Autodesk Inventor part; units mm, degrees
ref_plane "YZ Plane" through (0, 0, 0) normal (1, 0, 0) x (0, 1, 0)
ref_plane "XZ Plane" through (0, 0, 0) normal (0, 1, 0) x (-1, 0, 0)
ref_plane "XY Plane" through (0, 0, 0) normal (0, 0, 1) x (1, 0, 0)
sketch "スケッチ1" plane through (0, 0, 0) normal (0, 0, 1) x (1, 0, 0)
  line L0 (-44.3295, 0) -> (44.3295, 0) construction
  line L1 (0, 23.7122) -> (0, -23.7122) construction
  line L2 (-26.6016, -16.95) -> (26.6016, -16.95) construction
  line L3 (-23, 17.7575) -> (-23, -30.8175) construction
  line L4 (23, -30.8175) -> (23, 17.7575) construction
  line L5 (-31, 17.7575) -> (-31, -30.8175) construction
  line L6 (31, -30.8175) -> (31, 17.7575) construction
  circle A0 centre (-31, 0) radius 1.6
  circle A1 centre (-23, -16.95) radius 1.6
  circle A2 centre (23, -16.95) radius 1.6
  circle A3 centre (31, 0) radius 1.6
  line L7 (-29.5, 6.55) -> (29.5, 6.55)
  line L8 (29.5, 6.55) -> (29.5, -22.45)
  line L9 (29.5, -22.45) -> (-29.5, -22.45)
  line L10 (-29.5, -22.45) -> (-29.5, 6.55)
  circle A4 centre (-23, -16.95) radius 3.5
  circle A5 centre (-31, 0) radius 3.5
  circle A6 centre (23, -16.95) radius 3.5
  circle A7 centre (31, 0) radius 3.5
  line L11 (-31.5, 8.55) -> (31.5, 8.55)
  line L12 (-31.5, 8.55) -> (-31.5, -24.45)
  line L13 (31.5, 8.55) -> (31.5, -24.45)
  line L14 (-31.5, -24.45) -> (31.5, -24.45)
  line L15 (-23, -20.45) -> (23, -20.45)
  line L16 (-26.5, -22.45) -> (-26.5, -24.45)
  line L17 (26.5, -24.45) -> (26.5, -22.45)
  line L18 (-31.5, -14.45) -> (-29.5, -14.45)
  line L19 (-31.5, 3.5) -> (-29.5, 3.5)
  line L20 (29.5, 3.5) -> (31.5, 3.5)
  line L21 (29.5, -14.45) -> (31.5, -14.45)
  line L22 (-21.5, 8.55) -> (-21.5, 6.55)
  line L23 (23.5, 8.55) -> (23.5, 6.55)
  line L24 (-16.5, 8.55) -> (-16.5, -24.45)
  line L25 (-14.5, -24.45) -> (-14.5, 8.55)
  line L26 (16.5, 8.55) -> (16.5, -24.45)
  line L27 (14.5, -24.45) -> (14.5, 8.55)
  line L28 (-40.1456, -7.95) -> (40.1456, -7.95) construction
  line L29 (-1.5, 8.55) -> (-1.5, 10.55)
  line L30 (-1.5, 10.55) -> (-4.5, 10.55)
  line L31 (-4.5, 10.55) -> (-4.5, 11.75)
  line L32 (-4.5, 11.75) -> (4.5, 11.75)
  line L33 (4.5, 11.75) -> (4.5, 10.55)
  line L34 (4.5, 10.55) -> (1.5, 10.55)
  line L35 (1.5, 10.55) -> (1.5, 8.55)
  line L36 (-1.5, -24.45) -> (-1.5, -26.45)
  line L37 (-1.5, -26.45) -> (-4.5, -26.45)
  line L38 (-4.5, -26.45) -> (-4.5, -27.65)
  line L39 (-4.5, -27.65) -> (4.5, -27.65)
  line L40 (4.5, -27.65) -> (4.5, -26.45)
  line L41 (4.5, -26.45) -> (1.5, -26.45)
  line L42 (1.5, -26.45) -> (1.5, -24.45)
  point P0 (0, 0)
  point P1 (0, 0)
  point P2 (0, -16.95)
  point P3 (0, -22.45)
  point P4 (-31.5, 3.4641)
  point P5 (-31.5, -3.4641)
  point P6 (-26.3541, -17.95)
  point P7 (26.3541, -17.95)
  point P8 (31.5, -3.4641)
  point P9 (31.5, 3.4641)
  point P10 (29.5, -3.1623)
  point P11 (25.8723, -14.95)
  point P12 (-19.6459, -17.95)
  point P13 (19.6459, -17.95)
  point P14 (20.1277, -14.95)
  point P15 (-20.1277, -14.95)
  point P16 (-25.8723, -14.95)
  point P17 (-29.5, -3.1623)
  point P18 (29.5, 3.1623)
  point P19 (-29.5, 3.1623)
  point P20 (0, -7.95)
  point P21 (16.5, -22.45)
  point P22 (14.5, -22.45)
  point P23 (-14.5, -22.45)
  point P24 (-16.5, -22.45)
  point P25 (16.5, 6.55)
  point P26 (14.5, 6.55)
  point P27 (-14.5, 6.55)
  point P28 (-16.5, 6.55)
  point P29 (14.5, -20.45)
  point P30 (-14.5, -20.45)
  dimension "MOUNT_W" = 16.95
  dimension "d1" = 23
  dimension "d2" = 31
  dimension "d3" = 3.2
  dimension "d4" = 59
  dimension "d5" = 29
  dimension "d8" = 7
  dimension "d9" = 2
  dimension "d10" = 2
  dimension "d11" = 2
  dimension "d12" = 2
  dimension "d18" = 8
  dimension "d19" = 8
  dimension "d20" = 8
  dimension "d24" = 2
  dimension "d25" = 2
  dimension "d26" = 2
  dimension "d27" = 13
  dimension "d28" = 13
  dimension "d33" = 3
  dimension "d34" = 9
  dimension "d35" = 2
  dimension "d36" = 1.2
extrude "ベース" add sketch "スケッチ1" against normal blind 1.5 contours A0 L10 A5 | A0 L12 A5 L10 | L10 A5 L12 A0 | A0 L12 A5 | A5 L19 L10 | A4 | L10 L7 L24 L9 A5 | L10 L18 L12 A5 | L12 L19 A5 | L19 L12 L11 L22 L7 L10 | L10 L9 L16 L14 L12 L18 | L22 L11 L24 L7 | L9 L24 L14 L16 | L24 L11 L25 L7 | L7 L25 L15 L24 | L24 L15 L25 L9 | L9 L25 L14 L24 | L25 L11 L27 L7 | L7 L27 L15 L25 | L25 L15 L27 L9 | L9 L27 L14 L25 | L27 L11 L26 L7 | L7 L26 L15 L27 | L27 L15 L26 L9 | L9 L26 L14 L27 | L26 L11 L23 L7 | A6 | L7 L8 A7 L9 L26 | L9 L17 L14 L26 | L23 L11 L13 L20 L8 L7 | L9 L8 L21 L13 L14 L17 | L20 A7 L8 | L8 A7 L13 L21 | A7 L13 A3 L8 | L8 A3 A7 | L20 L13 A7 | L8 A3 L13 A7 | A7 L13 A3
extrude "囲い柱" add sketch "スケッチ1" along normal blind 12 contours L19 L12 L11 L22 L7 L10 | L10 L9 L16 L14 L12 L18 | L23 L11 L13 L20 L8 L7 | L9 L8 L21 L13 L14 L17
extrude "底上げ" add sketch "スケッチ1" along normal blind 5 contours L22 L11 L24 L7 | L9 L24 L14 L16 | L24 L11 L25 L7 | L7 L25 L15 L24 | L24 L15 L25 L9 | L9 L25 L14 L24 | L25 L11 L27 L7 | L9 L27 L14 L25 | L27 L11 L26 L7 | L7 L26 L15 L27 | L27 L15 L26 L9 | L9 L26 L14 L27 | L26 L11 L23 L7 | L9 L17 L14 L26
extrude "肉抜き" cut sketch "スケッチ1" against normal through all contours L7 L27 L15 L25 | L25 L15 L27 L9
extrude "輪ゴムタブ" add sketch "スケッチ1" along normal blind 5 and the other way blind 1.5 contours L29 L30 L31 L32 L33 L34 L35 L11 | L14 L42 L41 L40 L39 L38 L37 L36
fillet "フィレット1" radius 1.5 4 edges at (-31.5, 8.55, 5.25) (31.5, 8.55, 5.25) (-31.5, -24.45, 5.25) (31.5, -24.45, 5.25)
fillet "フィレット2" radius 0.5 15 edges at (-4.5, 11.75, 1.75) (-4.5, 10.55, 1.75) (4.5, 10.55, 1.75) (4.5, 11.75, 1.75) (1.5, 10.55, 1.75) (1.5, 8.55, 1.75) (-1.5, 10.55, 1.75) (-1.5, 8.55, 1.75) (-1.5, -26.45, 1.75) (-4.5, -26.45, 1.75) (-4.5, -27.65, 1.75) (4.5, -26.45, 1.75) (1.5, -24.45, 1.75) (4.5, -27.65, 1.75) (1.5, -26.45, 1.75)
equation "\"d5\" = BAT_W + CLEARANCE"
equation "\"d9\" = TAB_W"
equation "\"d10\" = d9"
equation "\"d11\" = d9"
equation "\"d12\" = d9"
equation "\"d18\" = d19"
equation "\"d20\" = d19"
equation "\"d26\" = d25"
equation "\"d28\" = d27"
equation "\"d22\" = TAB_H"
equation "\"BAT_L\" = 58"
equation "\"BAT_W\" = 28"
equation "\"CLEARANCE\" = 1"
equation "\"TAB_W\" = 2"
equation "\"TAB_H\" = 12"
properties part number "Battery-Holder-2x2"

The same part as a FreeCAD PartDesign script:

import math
import FreeCAD as App
import Part
import Sketcher


def edges_at(feature, points):
    """Names of the edges that pass closest to the given points."""
    edges = feature.Shape.Edges
    near = lambda p: min(range(len(edges)), key=lambda i: edges[i].distToShape(Part.Vertex(*p))[0])
    return sorted({f"Edge{near(p) + 1}" for p in points})


def add_polygon(sketch, points):
    """Adds a closed chain of lines whose ends are joined by coincident constraints."""
    first, n = sketch.GeometryCount, len(points)
    for a, b in zip(points, points[1:] + points[:1]):
        sketch.addGeometry(Part.LineSegment(App.Vector(*a, 0), App.Vector(*b, 0)), False)
    for i in range(n):
        sketch.addConstraint(Sketcher.Constraint("Coincident", first + i, 2, first + (i + 1) % n, 1))

doc = App.newDocument("Part")
body = doc.addObject("PartDesign::Body", "Body")

# Sketch on XY plane
sketch1 = body.newObject("Sketcher::SketchObject", "Sketch")
sketch1.AttachmentSupport = (doc.getObject("XY_Plane"), [""])
sketch1.MapMode = "FlatFace"
sketch1.addGeometry(Part.ArcOfCircle(Part.Circle(App.Vector(-31, 0, 0), App.Vector(0, 0, 1), 3.5), math.radians(98.213211), math.radians(261.786789)), False)
sketch1.addGeometry(Part.LineSegment(App.Vector(-31.5, -3.464102, 0), App.Vector(-31.5, -24.45, 0)), False)
sketch1.addGeometry(Part.LineSegment(App.Vector(-31.5, -24.45, 0), App.Vector(31.5, -24.45, 0)), False)
sketch1.addGeometry(Part.LineSegment(App.Vector(31.5, -24.45, 0), App.Vector(31.5, -3.464102, 0)), False)
sketch1.addGeometry(Part.ArcOfCircle(Part.Circle(App.Vector(31, 0, 0), App.Vector(0, 0, 1), 3.5), math.radians(-81.786789), math.radians(81.786789)), False)
sketch1.addGeometry(Part.LineSegment(App.Vector(31.5, 3.464102, 0), App.Vector(31.5, 8.55, 0)), False)
sketch1.addGeometry(Part.LineSegment(App.Vector(31.5, 8.55, 0), App.Vector(-31.5, 8.55, 0)), False)
sketch1.addGeometry(Part.LineSegment(App.Vector(-31.5, 8.55, 0), App.Vector(-31.5, 3.464102, 0)), False)
sketch1.addGeometry(Part.Circle(App.Vector(-31, 0, 0), App.Vector(0, 0, 1), 1.6), False)
sketch1.addGeometry(Part.Circle(App.Vector(-23, -16.95, 0), App.Vector(0, 0, 1), 1.6), False)
sketch1.addGeometry(Part.Circle(App.Vector(31, 0, 0), App.Vector(0, 0, 1), 1.6), False)
sketch1.addGeometry(Part.Circle(App.Vector(23, -16.95, 0), App.Vector(0, 0, 1), 1.6), False)
sketch1.addConstraint(Sketcher.Constraint("Coincident", 0, 2, 1, 1))
sketch1.addConstraint(Sketcher.Constraint("Coincident", 1, 2, 2, 1))
sketch1.addConstraint(Sketcher.Constraint("Coincident", 2, 2, 3, 1))
sketch1.addConstraint(Sketcher.Constraint("Coincident", 3, 2, 4, 1))
sketch1.addConstraint(Sketcher.Constraint("Coincident", 4, 2, 5, 1))
sketch1.addConstraint(Sketcher.Constraint("Coincident", 5, 2, 6, 1))
sketch1.addConstraint(Sketcher.Constraint("Coincident", 6, 2, 7, 1))
sketch1.addConstraint(Sketcher.Constraint("Coincident", 7, 2, 0, 1))
sketch1.addConstraint(Sketcher.Constraint("Vertical", 1))
sketch1.addConstraint(Sketcher.Constraint("Horizontal", 2))
sketch1.addConstraint(Sketcher.Constraint("Vertical", 3))
sketch1.addConstraint(Sketcher.Constraint("Vertical", 5))
sketch1.addConstraint(Sketcher.Constraint("Horizontal", 6))
sketch1.addConstraint(Sketcher.Constraint("Vertical", 7))
sketch1.addConstraint(Sketcher.Constraint("Coincident", 8, 3, 0, 3))
sketch1.addConstraint(Sketcher.Constraint("Coincident", 10, 3, 4, 3))
sketch1.addConstraint(Sketcher.Constraint("Equal", 0, 4))
sketch1.addConstraint(Sketcher.Constraint("Equal", 8, 9))
sketch1.addConstraint(Sketcher.Constraint("Equal", 9, 10))
sketch1.addConstraint(Sketcher.Constraint("Equal", 10, 11))
sketch1.addConstraint(Sketcher.Constraint("Symmetric", 0, 3, 4, 3, -1, 1))
sketch1.addConstraint(Sketcher.Constraint("Symmetric", 9, 3, 11, 3, -2))
sketch1.addConstraint(Sketcher.Constraint("Symmetric", 0, 2, 3, 2, -2))
sketch1.addConstraint(Sketcher.Constraint("Horizontal", 4, 2, 7, 2))
sketch1.addConstraint(Sketcher.Constraint("Vertical", 3, 2, 4, 2))
sketch1.addConstraint(Sketcher.Constraint("Diameter", 8, 3.2))
sketch1.addConstraint(Sketcher.Constraint("Radius", 0, 3.5))
sketch1.addConstraint(Sketcher.Constraint("DistanceX", 0, 3, -1, 1, 31.0))
sketch1.addConstraint(Sketcher.Constraint("DistanceX", 9, 3, -1, 1, 23.0))
sketch1.addConstraint(Sketcher.Constraint("DistanceX", 2, 1, 2, 2, 63.0))
sketch1.addConstraint(Sketcher.Constraint("DistanceY", 9, 3, -1, 1, 16.95))
sketch1.addConstraint(Sketcher.Constraint("DistanceY", 1, 2, 6, 2, 33.0))
sketch1.addConstraint(Sketcher.Constraint("DistanceY", 1, 2, 9, 3, 7.5))
pad1 = body.newObject("PartDesign::Pad", "Pad")
pad1.Profile = sketch1
pad1.Length = 1.5
pad1.Reversed = True

# Sketch on XY plane
sketch2 = body.newObject("Sketcher::SketchObject", "Sketch001")
sketch2.AttachmentSupport = (doc.getObject("XY_Plane"), [""])
sketch2.MapMode = "FlatFace"
add_polygon(sketch2, [(-31.5, 3.5), (-29.5, 3.5), (-29.5, 6.55), (-21.5, 6.55), (-21.5, 8.55), (-31.5, 8.55)])  # lines 0-5
add_polygon(sketch2, [(-29.5, -22.45), (-29.5, -14.45), (-31.5, -14.45), (-31.5, -24.45), (-26.5, -24.45), (-26.5, -22.45)])  # lines 6-11
add_polygon(sketch2, [(23.5, 8.55), (23.5, 6.55), (29.5, 6.55), (29.5, 3.5), (31.5, 3.5), (31.5, 8.55)])  # lines 12-17
add_polygon(sketch2, [(29.5, -22.45), (26.5, -22.45), (26.5, -24.45), (31.5, -24.45), (31.5, -14.45), (29.5, -14.45)])  # lines 18-23
sketch2.addConstraint(Sketcher.Constraint("Horizontal", 0))
sketch2.addConstraint(Sketcher.Constraint("Vertical", 1))
sketch2.addConstraint(Sketcher.Constraint("Horizontal", 2))
sketch2.addConstraint(Sketcher.Constraint("Vertical", 3))
sketch2.addConstraint(Sketcher.Constraint("Horizontal", 4))
sketch2.addConstraint(Sketcher.Constraint("Vertical", 5))
sketch2.addConstraint(Sketcher.Constraint("Vertical", 6))
sketch2.addConstraint(Sketcher.Constraint("Horizontal", 7))
sketch2.addConstraint(Sketcher.Constraint("Vertical", 8))
sketch2.addConstraint(Sketcher.Constraint("Horizontal", 9))
sketch2.addConstraint(Sketcher.Constraint("Vertical", 10))
sketch2.addConstraint(Sketcher.Constraint("Horizontal", 11))
sketch2.addConstraint(Sketcher.Constraint("Vertical", 12))
sketch2.addConstraint(Sketcher.Constraint("Horizontal", 13))
sketch2.addConstraint(Sketcher.Constraint("Vertical", 14))
sketch2.addConstraint(Sketcher.Constraint("Horizontal", 15))
sketch2.addConstraint(Sketcher.Constraint("Vertical", 16))
sketch2.addConstraint(Sketcher.Constraint("Horizontal", 17))
sketch2.addConstraint(Sketcher.Constraint("Horizontal", 18))
sketch2.addConstraint(Sketcher.Constraint("Vertical", 19))
sketch2.addConstraint(Sketcher.Constraint("Horizontal", 20))
sketch2.addConstraint(Sketcher.Constraint("Vertical", 21))
sketch2.addConstraint(Sketcher.Constraint("Horizontal", 22))
sketch2.addConstraint(Sketcher.Constraint("Vertical", 23))
sketch2.addConstraint(Sketcher.Constraint("Symmetric", 1, 2, 13, 2, -2))
sketch2.addConstraint(Sketcher.Constraint("Symmetric", 5, 2, 15, 2, -2))
sketch2.addConstraint(Sketcher.Constraint("Symmetric", 10, 2, 18, 2, -2))
sketch2.addConstraint(Sketcher.Constraint("Symmetric", 8, 2, 20, 2, -2))
sketch2.addConstraint(Sketcher.Constraint("Symmetric", 6, 2, 22, 2, -2))
sketch2.addConstraint(Sketcher.Constraint("Horizontal", 4, 2, 16, 2))
sketch2.addConstraint(Sketcher.Constraint("Vertical", 1, 2, 6, 2))
sketch2.addConstraint(Sketcher.Constraint("Vertical", 5, 2, 7, 2))
sketch2.addConstraint(Sketcher.Constraint("Equal", 2, 17))
sketch2.addConstraint(Sketcher.Constraint("Equal", 22, 3))
sketch2.addConstraint(Sketcher.Constraint("Equal", 17, 6))
sketch2.addConstraint(Sketcher.Constraint("Equal", 4, 8))
sketch2.addConstraint(Sketcher.Constraint("DistanceX", 0, 1, 0, 2, 2.0))
sketch2.addConstraint(Sketcher.Constraint("DistanceX", 2, 1, 2, 2, 8.0))
sketch2.addConstraint(Sketcher.Constraint("DistanceX", 11, 2, 11, 1, 3.0))
sketch2.addConstraint(Sketcher.Constraint("DistanceY", 6, 2, 4, 2, 23.0))
sketch2.addConstraint(Sketcher.Constraint("DistanceX", 1, 2, 13, 2, 59.0))
sketch2.addConstraint(Sketcher.Constraint("DistanceY", 1, 1, 1, 2, 3.05))
sketch2.addConstraint(Sketcher.Constraint("DistanceY", -1, 1, 0, 2, 3.5))
pad2 = body.newObject("PartDesign::Pad", "Pad001")
pad2.Profile = sketch2
pad2.Length = 12

# Sketch on XY plane
sketch3 = body.newObject("Sketcher::SketchObject", "Sketch002")
sketch3.AttachmentSupport = (doc.getObject("XY_Plane"), [""])
sketch3.MapMode = "FlatFace"
add_polygon(sketch3, [(-21.5, 8.55), (-21.5, 6.55), (-16.5, 6.55), (-16.5, -22.45), (-26.5, -22.45), (-26.5, -24.45), (26.5, -24.45), (26.5, -22.45), (16.5, -22.45), (16.5, 6.55), (23.5, 6.55), (23.5, 8.55)])  # lines 0-11
add_polygon(sketch3, [(-14.5, 6.55), (14.5, 6.55), (14.5, -22.45), (-14.5, -22.45)])  # lines 12-15
sketch3.addConstraint(Sketcher.Constraint("Vertical", 0))
sketch3.addConstraint(Sketcher.Constraint("Horizontal", 1))
sketch3.addConstraint(Sketcher.Constraint("Vertical", 2))
sketch3.addConstraint(Sketcher.Constraint("Horizontal", 3))
sketch3.addConstraint(Sketcher.Constraint("Vertical", 4))
sketch3.addConstraint(Sketcher.Constraint("Horizontal", 5))
sketch3.addConstraint(Sketcher.Constraint("Vertical", 6))
sketch3.addConstraint(Sketcher.Constraint("Horizontal", 7))
sketch3.addConstraint(Sketcher.Constraint("Vertical", 8))
sketch3.addConstraint(Sketcher.Constraint("Horizontal", 9))
sketch3.addConstraint(Sketcher.Constraint("Vertical", 10))
sketch3.addConstraint(Sketcher.Constraint("Horizontal", 11))
sketch3.addConstraint(Sketcher.Constraint("Horizontal", 12))
sketch3.addConstraint(Sketcher.Constraint("Vertical", 13))
sketch3.addConstraint(Sketcher.Constraint("Horizontal", 14))
sketch3.addConstraint(Sketcher.Constraint("Vertical", 15))
sketch3.addConstraint(Sketcher.Constraint("Symmetric", 3, 2, 6, 2, -2))
sketch3.addConstraint(Sketcher.Constraint("Symmetric", 1, 2, 8, 2, -2))
sketch3.addConstraint(Sketcher.Constraint("Horizontal", 9, 2, 12, 2))
sketch3.addConstraint(Sketcher.Constraint("Horizontal", 7, 2, 13, 2))
sketch3.addConstraint(Sketcher.Constraint("Equal", 14, 2))
sketch3.addConstraint(Sketcher.Constraint("Equal", 0, 4))
sketch3.addConstraint(Sketcher.Constraint("DistanceX", 9, 1, 9, 2, 7.0))
sketch3.addConstraint(Sketcher.Constraint("DistanceX", 12, 1, 12, 2, 29.0))
sketch3.addConstraint(Sketcher.Constraint("DistanceY", 0, 2, 0, 1, 2.0))
sketch3.addConstraint(Sketcher.Constraint("DistanceX", 9, 2, 6, 2, 3.0))
sketch3.addConstraint(Sketcher.Constraint("DistanceX", 12, 2, 8, 2, 2.0))
sketch3.addConstraint(Sketcher.Constraint("DistanceX", 1, 2, 12, 2, 31.0))
sketch3.addConstraint(Sketcher.Constraint("DistanceX", 0, 2, 15, 2, 7.0))
sketch3.addConstraint(Sketcher.Constraint("DistanceY", -1, 1, 0, 2, 6.55))
pad3 = body.newObject("PartDesign::Pad", "Pad002")
pad3.Profile = sketch3
pad3.Length = 5

# Sketch on XY plane
sketch4 = body.newObject("Sketcher::SketchObject", "Sketch003")
sketch4.AttachmentSupport = (doc.getObject("XY_Plane"), [""])
sketch4.MapMode = "FlatFace"
add_polygon(sketch4, [(14.5, 6.55), (-14.5, 6.55), (-14.5, -22.45), (14.5, -22.45)])  # lines 0-3
sketch4.addConstraint(Sketcher.Constraint("Horizontal", 0))
sketch4.addConstraint(Sketcher.Constraint("Vertical", 1))
sketch4.addConstraint(Sketcher.Constraint("Horizontal", 2))
sketch4.addConstraint(Sketcher.Constraint("Vertical", 3))
sketch4.addConstraint(Sketcher.Constraint("Equal", 2, 1))
sketch4.addConstraint(Sketcher.Constraint("DistanceX", 0, 2, 0, 1, 29.0))
sketch4.addConstraint(Sketcher.Constraint("DistanceX", 0, 2, -1, 1, 14.5))
sketch4.addConstraint(Sketcher.Constraint("DistanceY", -1, 1, 0, 2, 6.55))
pocket1 = body.newObject("PartDesign::Pocket", "Pocket")
pocket1.Profile = sketch4
pocket1.Type = "ThroughAll"

# Sketch on XY plane
sketch5 = body.newObject("Sketcher::SketchObject", "Sketch004")
sketch5.AttachmentSupport = (doc.getObject("XY_Plane"), [""])
sketch5.MapMode = "FlatFace"
add_polygon(sketch5, [(-1.5, 10.55), (-1.5, 8.55), (1.5, 8.55), (1.5, 10.55), (4.5, 10.55), (4.5, 11.75), (-4.5, 11.75), (-4.5, 10.55)])  # lines 0-7
add_polygon(sketch5, [(1.5, -24.45), (-1.5, -24.45), (-1.5, -26.45), (-4.5, -26.45), (-4.5, -27.65), (4.5, -27.65), (4.5, -26.45), (1.5, -26.45)])  # lines 8-15
sketch5.addConstraint(Sketcher.Constraint("Vertical", 0))
sketch5.addConstraint(Sketcher.Constraint("Horizontal", 1))
sketch5.addConstraint(Sketcher.Constraint("Vertical", 2))
sketch5.addConstraint(Sketcher.Constraint("Horizontal", 3))
sketch5.addConstraint(Sketcher.Constraint("Vertical", 4))
sketch5.addConstraint(Sketcher.Constraint("Horizontal", 5))
sketch5.addConstraint(Sketcher.Constraint("Vertical", 6))
sketch5.addConstraint(Sketcher.Constraint("Horizontal", 7))
sketch5.addConstraint(Sketcher.Constraint("Horizontal", 8))
sketch5.addConstraint(Sketcher.Constraint("Vertical", 9))
sketch5.addConstraint(Sketcher.Constraint("Horizontal", 10))
sketch5.addConstraint(Sketcher.Constraint("Vertical", 11))
sketch5.addConstraint(Sketcher.Constraint("Horizontal", 12))
sketch5.addConstraint(Sketcher.Constraint("Vertical", 13))
sketch5.addConstraint(Sketcher.Constraint("Horizontal", 14))
sketch5.addConstraint(Sketcher.Constraint("Vertical", 15))
sketch5.addConstraint(Sketcher.Constraint("Symmetric", 3, 2, 6, 2, -2))
sketch5.addConstraint(Sketcher.Constraint("Symmetric", 10, 2, 13, 2, -2))
sketch5.addConstraint(Sketcher.Constraint("Vertical", 7, 2, 8, 2))
sketch5.addConstraint(Sketcher.Constraint("Vertical", 6, 2, 10, 2))
sketch5.addConstraint(Sketcher.Constraint("Vertical", 2, 2, 14, 2))
sketch5.addConstraint(Sketcher.Constraint("Equal", 1, 3))
sketch5.addConstraint(Sketcher.Constraint("Equal", 3, 7))
sketch5.addConstraint(Sketcher.Constraint("Equal", 2, 9))
sketch5.addConstraint(Sketcher.Constraint("Equal", 6, 11))
sketch5.addConstraint(Sketcher.Constraint("DistanceX", 1, 1, 1, 2, 3.0))
sketch5.addConstraint(Sketcher.Constraint("DistanceY", 0, 2, 0, 1, 2.0))
sketch5.addConstraint(Sketcher.Constraint("DistanceY", 4, 1, 4, 2, 1.2))
sketch5.addConstraint(Sketcher.Constraint("DistanceY", 8, 2, 0, 2, 33.0))
sketch5.addConstraint(Sketcher.Constraint("DistanceY", -1, 1, 0, 2, 8.55))
pad4 = body.newObject("PartDesign::Pad", "Pad003")
pad4.Profile = sketch5
pad4.Type = "TwoLengths"
pad4.Length = 5
pad4.Length2 = 1.5
doc.recompute()

fillet = body.newObject("PartDesign::Fillet", "Fillet")
fillet.Base = (pad4, edges_at(pad4, [
    (-31.5, 8.55, 5.25),
    (31.5, 8.55, 5.25),
    (-31.5, -24.45, 5.25),
    (31.5, -24.45, 5.25),
]))
fillet.Radius = 1.5
doc.recompute()

fillet2 = body.newObject("PartDesign::Fillet", "Fillet001")
fillet2.Base = (fillet, edges_at(fillet, [
    (-4.5, 11.75, 1.75),
    (-4.5, 10.55, 1.75),
    (4.5, 10.55, 1.75),
    (4.5, 11.75, 1.75),
    (1.5, 10.55, 1.75),
    (1.5, 8.55, 1.75),
    (-1.5, 10.55, 1.75),
    (-1.5, 8.55, 1.75),
    (-1.5, -26.45, 1.75),
    (-4.5, -26.45, 1.75),
    (-4.5, -27.65, 1.75),
    (4.5, -26.45, 1.75),
    (1.5, -24.45, 1.75),
    (4.5, -27.65, 1.75),
    (1.5, -26.45, 1.75),
]))
fillet2.Radius = 0.5

doc.recompute()
